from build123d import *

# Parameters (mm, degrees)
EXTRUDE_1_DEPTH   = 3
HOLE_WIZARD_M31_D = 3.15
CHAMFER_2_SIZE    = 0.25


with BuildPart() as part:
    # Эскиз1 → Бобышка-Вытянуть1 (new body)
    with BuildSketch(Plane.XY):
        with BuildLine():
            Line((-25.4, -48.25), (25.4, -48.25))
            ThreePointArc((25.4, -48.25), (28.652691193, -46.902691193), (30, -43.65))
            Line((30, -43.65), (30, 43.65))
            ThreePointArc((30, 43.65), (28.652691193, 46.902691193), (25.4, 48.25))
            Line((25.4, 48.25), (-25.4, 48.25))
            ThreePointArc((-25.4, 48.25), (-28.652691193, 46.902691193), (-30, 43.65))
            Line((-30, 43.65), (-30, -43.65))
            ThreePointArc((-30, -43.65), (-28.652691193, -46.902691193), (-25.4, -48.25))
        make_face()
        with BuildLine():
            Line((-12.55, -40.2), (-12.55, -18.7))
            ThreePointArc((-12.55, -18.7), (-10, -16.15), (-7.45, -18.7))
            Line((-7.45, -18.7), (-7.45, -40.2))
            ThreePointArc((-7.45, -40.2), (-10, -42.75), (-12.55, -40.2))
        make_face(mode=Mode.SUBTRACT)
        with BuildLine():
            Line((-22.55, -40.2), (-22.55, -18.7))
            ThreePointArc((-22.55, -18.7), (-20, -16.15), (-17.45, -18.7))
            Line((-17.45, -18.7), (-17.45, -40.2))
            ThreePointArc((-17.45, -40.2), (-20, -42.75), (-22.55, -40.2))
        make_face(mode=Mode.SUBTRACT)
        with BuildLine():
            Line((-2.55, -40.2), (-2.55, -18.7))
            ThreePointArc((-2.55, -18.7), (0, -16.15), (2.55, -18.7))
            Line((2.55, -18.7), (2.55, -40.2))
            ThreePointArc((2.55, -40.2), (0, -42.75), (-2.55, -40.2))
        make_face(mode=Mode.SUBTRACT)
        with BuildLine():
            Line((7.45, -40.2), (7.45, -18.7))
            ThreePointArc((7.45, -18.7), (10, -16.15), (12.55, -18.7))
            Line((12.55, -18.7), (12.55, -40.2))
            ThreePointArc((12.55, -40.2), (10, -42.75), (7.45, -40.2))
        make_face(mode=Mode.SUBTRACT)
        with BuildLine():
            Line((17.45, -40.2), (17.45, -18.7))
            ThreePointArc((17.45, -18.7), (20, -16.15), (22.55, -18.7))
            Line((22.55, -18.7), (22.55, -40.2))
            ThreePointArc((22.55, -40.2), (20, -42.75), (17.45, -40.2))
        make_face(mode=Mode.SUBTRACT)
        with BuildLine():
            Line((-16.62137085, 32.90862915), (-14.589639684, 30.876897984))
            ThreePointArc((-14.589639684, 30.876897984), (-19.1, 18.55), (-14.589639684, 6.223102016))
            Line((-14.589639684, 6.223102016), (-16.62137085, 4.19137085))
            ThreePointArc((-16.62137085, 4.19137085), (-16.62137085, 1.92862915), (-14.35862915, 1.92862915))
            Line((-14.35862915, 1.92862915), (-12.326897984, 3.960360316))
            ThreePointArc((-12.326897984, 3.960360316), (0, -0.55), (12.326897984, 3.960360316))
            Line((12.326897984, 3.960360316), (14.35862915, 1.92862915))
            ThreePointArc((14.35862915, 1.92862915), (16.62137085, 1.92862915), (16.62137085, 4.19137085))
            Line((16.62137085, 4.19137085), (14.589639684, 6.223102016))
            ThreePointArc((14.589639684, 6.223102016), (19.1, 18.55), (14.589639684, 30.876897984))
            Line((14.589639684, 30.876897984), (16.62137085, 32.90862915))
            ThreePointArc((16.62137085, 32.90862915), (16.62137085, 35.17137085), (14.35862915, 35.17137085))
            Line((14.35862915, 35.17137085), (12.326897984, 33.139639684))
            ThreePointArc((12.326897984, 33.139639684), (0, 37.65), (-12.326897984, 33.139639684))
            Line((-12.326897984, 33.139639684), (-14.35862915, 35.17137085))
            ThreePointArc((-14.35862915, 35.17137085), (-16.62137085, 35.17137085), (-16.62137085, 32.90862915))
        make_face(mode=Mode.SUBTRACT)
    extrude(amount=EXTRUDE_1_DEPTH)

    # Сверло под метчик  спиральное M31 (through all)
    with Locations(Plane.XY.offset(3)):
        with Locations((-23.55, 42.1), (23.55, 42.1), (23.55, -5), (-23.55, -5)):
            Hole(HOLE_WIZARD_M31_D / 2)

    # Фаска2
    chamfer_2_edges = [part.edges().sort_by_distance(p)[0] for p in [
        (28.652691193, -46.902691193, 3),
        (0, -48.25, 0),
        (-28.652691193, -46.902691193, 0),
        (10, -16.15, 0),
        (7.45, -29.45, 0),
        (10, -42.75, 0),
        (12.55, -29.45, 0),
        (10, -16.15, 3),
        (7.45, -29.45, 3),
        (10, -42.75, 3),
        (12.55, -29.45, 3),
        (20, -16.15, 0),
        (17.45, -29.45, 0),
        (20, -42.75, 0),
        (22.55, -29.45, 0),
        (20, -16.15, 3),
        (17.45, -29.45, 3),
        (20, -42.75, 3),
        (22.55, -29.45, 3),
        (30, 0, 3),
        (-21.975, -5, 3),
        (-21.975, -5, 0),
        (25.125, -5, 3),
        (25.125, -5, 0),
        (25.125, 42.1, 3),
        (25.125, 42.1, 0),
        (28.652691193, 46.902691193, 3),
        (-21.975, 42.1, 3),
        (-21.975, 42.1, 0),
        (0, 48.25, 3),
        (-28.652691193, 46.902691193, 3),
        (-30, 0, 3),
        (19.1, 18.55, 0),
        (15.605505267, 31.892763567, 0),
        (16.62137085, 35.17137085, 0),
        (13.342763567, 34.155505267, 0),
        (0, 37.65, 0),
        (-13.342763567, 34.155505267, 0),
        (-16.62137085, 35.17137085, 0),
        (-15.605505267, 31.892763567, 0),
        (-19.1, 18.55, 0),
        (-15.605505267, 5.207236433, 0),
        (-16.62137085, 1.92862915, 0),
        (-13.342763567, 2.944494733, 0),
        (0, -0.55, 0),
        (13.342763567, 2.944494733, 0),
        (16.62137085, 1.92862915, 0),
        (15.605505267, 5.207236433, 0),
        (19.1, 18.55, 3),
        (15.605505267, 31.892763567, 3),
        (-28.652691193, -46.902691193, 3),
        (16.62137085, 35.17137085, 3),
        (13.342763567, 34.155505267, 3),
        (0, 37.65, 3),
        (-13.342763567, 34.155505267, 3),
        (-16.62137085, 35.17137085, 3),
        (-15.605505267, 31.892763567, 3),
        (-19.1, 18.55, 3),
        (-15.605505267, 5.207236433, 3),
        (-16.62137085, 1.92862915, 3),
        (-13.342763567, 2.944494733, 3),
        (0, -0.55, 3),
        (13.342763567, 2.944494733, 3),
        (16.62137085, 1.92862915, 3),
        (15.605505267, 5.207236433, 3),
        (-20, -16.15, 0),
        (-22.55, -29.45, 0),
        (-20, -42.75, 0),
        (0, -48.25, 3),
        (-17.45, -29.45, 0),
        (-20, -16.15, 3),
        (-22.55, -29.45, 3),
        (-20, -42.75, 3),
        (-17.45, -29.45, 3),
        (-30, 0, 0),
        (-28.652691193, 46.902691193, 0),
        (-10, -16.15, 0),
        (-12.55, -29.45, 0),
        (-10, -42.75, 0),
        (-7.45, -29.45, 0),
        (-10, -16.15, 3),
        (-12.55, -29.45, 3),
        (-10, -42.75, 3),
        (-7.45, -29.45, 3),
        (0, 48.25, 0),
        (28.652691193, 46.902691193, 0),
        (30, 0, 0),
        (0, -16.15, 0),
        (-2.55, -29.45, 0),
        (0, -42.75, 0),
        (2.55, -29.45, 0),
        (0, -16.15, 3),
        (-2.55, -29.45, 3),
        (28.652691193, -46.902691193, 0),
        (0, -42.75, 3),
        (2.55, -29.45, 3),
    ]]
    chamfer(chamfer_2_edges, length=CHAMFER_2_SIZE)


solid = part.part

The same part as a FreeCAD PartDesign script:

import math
import FreeCAD as App
import Part
import Sketcher
from FreeCAD import Vector


def edges_at(feature, points):
    """Names of the edges that pass closest to the given points."""
    edges = feature.Shape.Edges
    near = lambda p: min(range(len(edges)), key=lambda i: edges[i].distToShape(Part.Vertex(*p))[0])
    return sorted({f"Edge{near(p) + 1}" for p in points})

doc = App.newDocument("Part")
body = doc.addObject("PartDesign::Body", "Body")

# Sketch on XY plane
sketch1 = body.newObject("Sketcher::SketchObject", "Sketch")
sketch1.AttachmentSupport = (doc.getObject("XY_Plane"), [""])
sketch1.MapMode = "FlatFace"
sketch1.addGeometry(Part.LineSegment(Vector(-25.4, -48.2, 0), Vector(25.4, -48.2, 0)), False)
sketch1.addGeometry(Part.ArcOfCircle(Part.Circle(Vector(25.4, -43.6, 0), Vector(0, 0, 1), 4.6), math.radians(-90), math.radians(0)), False)
sketch1.addGeometry(Part.LineSegment(Vector(30, -43.6, 0), Vector(30, 43.6, 0)), False)
sketch1.addGeometry(Part.ArcOfCircle(Part.Circle(Vector(25.4, 43.6, 0), Vector(0, 0, 1), 4.6), math.radians(0), math.radians(90)), False)
sketch1.addGeometry(Part.LineSegment(Vector(25.4, 48.2, 0), Vector(-25.4, 48.2, 0)), False)
sketch1.addGeometry(Part.ArcOfCircle(Part.Circle(Vector(-25.4, 43.6, 0), Vector(0, 0, 1), 4.6), math.radians(90), math.radians(180)), False)
sketch1.addGeometry(Part.LineSegment(Vector(-30, 43.6, 0), Vector(-30, -43.6, 0)), False)
sketch1.addGeometry(Part.ArcOfCircle(Part.Circle(Vector(-25.4, -43.6, 0), Vector(0, 0, 1), 4.6), math.radians(-180), math.radians(-90)), False)
sketch1.addGeometry(Part.ArcOfCircle(Part.Circle(Vector(-20, -40.2, 0), Vector(0, 0, 1), 2.5), math.radians(180), math.radians(360)), False)
sketch1.addGeometry(Part.LineSegment(Vector(-22.6, -40.2, 0), Vector(-22.6, -18.7, 0)), False)
sketch1.addGeometry(Part.ArcOfCircle(Part.Circle(Vector(-20, -18.7, 0), Vector(0, 0, 1), 2.5), math.radians(0), math.radians(180)), False)
sketch1.addGeometry(Part.LineSegment(Vector(-17.4, -18.7, 0), Vector(-17.4, -40.2, 0)), False)
sketch1.addGeometry(Part.ArcOfCircle(Part.Circle(Vector(-10, -40.2, 0), Vector(0, 0, 1), 2.5), math.radians(180), math.radians(360)), False)
sketch1.addGeometry(Part.LineSegment(Vector(-12.6, -40.2, 0), Vector(-12.6, -18.7, 0)), False)
sketch1.addGeometry(Part.ArcOfCircle(Part.Circle(Vector(-10, -18.7, 0), Vector(0, 0, 1), 2.5), math.radians(0), math.radians(180)), False)
sketch1.addGeometry(Part.LineSegment(Vector(-7.5, -18.7, 0), Vector(-7.5, -40.2, 0)), False)
sketch1.addGeometry(Part.ArcOfCircle(Part.Circle(Vector(0, -40.2, 0), Vector(0, 0, 1), 2.5), math.radians(180), math.radians(360)), False)
sketch1.addGeometry(Part.LineSegment(Vector(-2.5, -40.2, 0), Vector(-2.5, -18.7, 0)), False)
sketch1.addGeometry(Part.ArcOfCircle(Part.Circle(Vector(0, -18.7, 0), Vector(0, 0, 1), 2.5), math.radians(0), math.radians(180)), False)
sketch1.addGeometry(Part.LineSegment(Vector(2.5, -18.7, 0), Vector(2.5, -40.2, 0)), False)
sketch1.addGeometry(Part.ArcOfCircle(Part.Circle(Vector(10, -40.2, 0), Vector(0, 0, 1), 2.5), math.radians(180), math.radians(360)), False)
sketch1.addGeometry(Part.LineSegment(Vector(7.5, -40.2, 0), Vector(7.5, -18.7, 0)), False)
sketch1.addGeometry(Part.ArcOfCircle(Part.Circle(Vector(10, -18.7, 0), Vector(0, 0, 1), 2.5), math.radians(0), math.radians(180)), False)
sketch1.addGeometry(Part.LineSegment(Vector(12.6, -18.7, 0), Vector(12.6, -40.2, 0)), False)
sketch1.addGeometry(Part.ArcOfCircle(Part.Circle(Vector(20, -40.2, 0), Vector(0, 0, 1), 2.5), math.radians(180), math.radians(360)), False)
sketch1.addGeometry(Part.LineSegment(Vector(17.4, -40.2, 0), Vector(17.4, -18.7, 0)), False)
sketch1.addGeometry(Part.ArcOfCircle(Part.Circle(Vector(20, -18.7, 0), Vector(0, 0, 1), 2.5), math.radians(0), math.radians(180)), False)
sketch1.addGeometry(Part.LineSegment(Vector(22.6, -18.7, 0), Vector(22.6, -40.2, 0)), False)
sketch1.addGeometry(Part.LineSegment(Vector(-14.6, 30.9, 0), Vector(-16.6, 32.9, 0)), False)
sketch1.addGeometry(Part.ArcOfCircle(Part.Circle(Vector(-15.5, 34, 0), Vector(0, 0, 1), 1.6), math.radians(45), math.radians(225)), False)
sketch1.addGeometry(Part.LineSegment(Vector(-14.4, 35.2, 0), Vector(-12.3, 33.1, 0)), False)
sketch1.addGeometry(Part.ArcOfCircle(Part.Circle(Vector(0, 18.5, 0), Vector(0, 0, 1), 19.1), math.radians(50), math.radians(130)), False)
sketch1.addGeometry(Part.LineSegment(Vector(12.3, 33.1, 0), Vector(14.4, 35.2, 0)), False)
sketch1.addGeometry(Part.ArcOfCircle(Part.Circle(Vector(15.5, 34, 0), Vector(0, 0, 1), 1.6), math.radians(-45), math.radians(135)), False)
sketch1.addGeometry(Part.LineSegment(Vector(16.6, 32.9, 0), Vector(14.6, 30.9, 0)), False)
sketch1.addGeometry(Part.ArcOfCircle(Part.Circle(Vector(0, 18.6, 0), Vector(0, 0, 1), 19.1), math.radians(-40), math.radians(40)), False)
sketch1.addGeometry(Part.LineSegment(Vector(14.6, 6.2, 0), Vector(16.6, 4.2, 0)), False)
sketch1.addGeometry(Part.ArcOfCircle(Part.Circle(Vector(15.5, 3.1, 0), Vector(0, 0, 1), 1.6), math.radians(-135), math.radians(45)), False)
sketch1.addGeometry(Part.LineSegment(Vector(14.4, 1.9, 0), Vector(12.3, 4, 0)), False)
sketch1.addGeometry(Part.ArcOfCircle(Part.Circle(Vector(0, 18.6, 0), Vector(0, 0, 1), 19.1), math.radians(-130), math.radians(-50)), False)
sketch1.addGeometry(Part.LineSegment(Vector(-12.3, 4, 0), Vector(-14.4, 1.9, 0)), False)
sketch1.addGeometry(Part.ArcOfCircle(Part.Circle(Vector(-15.5, 3.1, 0), Vector(0, 0, 1), 1.6), math.radians(135), math.radians(315)), False)
sketch1.addGeometry(Part.LineSegment(Vector(-16.6, 4.2, 0), Vector(-14.6, 6.2, 0)), False)
sketch1.addGeometry(Part.ArcOfCircle(Part.Circle(Vector(0, 18.6, 0), Vector(0, 0, 1), 19.1), math.radians(140), math.radians(220)), False)
sketch1.addConstraint(Sketcher.Constraint("Tangent", 0, 2, 1, 1))
sketch1.addConstraint(Sketcher.Constraint("Tangent", 1, 2, 2, 1))
sketch1.addConstraint(Sketcher.Constraint("Tangent", 2, 2, 3, 1))
sketch1.addConstraint(Sketcher.Constraint("Tangent", 3, 2, 4, 1))
sketch1.addConstraint(Sketcher.Constraint("Tangent", 4, 2, 5, 1))
sketch1.addConstraint(Sketcher.Constraint("Tangent", 5, 2, 6, 1))
sketch1.addConstraint(Sketcher.Constraint("Tangent", 6, 2, 7, 1))
sketch1.addConstraint(Sketcher.Constraint("Tangent", 7, 2, 0, 1))
sketch1.addConstraint(Sketcher.Constraint("Tangent", 8, 1, 9, 1))
sketch1.addConstraint(Sketcher.Constraint("Tangent", 9, 2, 10, 2))
sketch1.addConstraint(Sketcher.Constraint("Tangent", 10, 1, 11, 1))
sketch1.addConstraint(Sketcher.Constraint("Tangent", 11, 2, 8, 2))
sketch1.addConstraint(Sketcher.Constraint("Tangent", 12, 1, 13, 1))
sketch1.addConstraint(Sketcher.Constraint("Tangent", 13, 2, 14, 2))
sketch1.addConstraint(Sketcher.Constraint("Tangent", 14, 1, 15, 1))
sketch1.addConstraint(Sketcher.Constraint("Tangent", 15, 2, 12, 2))
sketch1.addConstraint(Sketcher.Constraint("Tangent", 16, 1, 17, 1))
sketch1.addConstraint(Sketcher.Constraint("Tangent", 17, 2, 18, 2))
sketch1.addConstraint(Sketcher.Constraint("Tangent", 18, 1, 19, 1))
sketch1.addConstraint(Sketcher.Constraint("Tangent", 19, 2, 16, 2))
sketch1.addConstraint(Sketcher.Constraint("Tangent", 20, 1, 21, 1))
sketch1.addConstraint(Sketcher.Constraint("Tangent", 21, 2, 22, 2))
sketch1.addConstraint(Sketcher.Constraint("Tangent", 22, 1, 23, 1))
sketch1.addConstraint(Sketcher.Constraint("Tangent", 23, 2, 20, 2))
sketch1.addConstraint(Sketcher.Constraint("Tangent", 24, 1, 25, 1))
sketch1.addConstraint(Sketcher.Constraint("Tangent", 25, 2, 26, 2))
sketch1.addConstraint(Sketcher.Constraint("Tangent", 26, 1, 27, 1))
sketch1.addConstraint(Sketcher.Constraint("Tangent", 27, 2, 24, 2))
sketch1.addConstraint(Sketcher.Constraint("Tangent", 28, 2, 29, 2))
sketch1.addConstraint(Sketcher.Constraint("Tangent", 29, 1, 30, 1))
sketch1.addConstraint(Sketcher.Constraint("Coincident", 30, 2, 31, 2))
sketch1.addConstraint(Sketcher.Constraint("Coincident", 31, 1, 32, 1))
sketch1.addConstraint(Sketcher.Constraint("Tangent", 32, 2, 33, 2))
sketch1.addConstraint(Sketcher.Constraint("Tangent", 33, 1, 34, 1))
sketch1.addConstraint(Sketcher.Constraint("Coincident", 34, 2, 35, 2))
sketch1.addConstraint(Sketcher.Constraint("Coincident", 35, 1, 36, 1))
sketch1.addConstraint(Sketcher.Constraint("Tangent", 36, 2, 37, 2))
sketch1.addConstraint(Sketcher.Constraint("Tangent", 37, 1, 38, 1))
sketch1.addConstraint(Sketcher.Constraint("Coincident", 38, 2, 39, 2))
sketch1.addConstraint(Sketcher.Constraint("Coincident", 39, 1, 40, 1))
sketch1.addConstraint(Sketcher.Constraint("Tangent", 40, 2, 41, 2))
sketch1.addConstraint(Sketcher.Constraint("Tangent", 41, 1, 42, 1))
sketch1.addConstraint(Sketcher.Constraint("Coincident", 42, 2, 43, 2))
sketch1.addConstraint(Sketcher.Constraint("Coincident", 43, 1, 28, 1))
sketch1.addConstraint(Sketcher.Constraint("Horizontal", 0))
sketch1.addConstraint(Sketcher.Constraint("Vertical", 2))
sketch1.addConstraint(Sketcher.Constraint("Horizontal", 4))
sketch1.addConstraint(Sketcher.Constraint("Vertical", 6))
sketch1.addConstraint(Sketcher.Constraint("Vertical", 9))
sketch1.addConstraint(Sketcher.Constraint("Vertical", 11))
sketch1.addConstraint(Sketcher.Constraint("Vertical", 13))
sketch1.addConstraint(Sketcher.Constraint("Vertical", 15))
sketch1.addConstraint(Sketcher.Constraint("Vertical", 17))
sketch1.addConstraint(Sketcher.Constraint("Vertical", 19))
sketch1.addConstraint(Sketcher.Constraint("Vertical", 21))
sketch1.addConstraint(Sketcher.Constraint("Vertical", 23))
sketch1.addConstraint(Sketcher.Constraint("Vertical", 25))
sketch1.addConstraint(Sketcher.Constraint("Vertical", 27))
sketch1.addConstraint(Sketcher.Constraint("Coincident", 35, 3, 31, 3))
sketch1.addConstraint(Sketcher.Constraint("Coincident", 39, 3, 31, 3))
sketch1.addConstraint(Sketcher.Constraint("Coincident", 43, 3, 31, 3))
sketch1.addConstraint(Sketcher.Constraint("Equal", 1, 3))
sketch1.addConstraint(Sketcher.Constraint("Equal", 3, 5))
sketch1.addConstraint(Sketcher.Constraint("Equal", 5, 7))
sketch1.addConstraint(Sketcher.Constraint("Equal", 10, 12))
sketch1.addConstraint(Sketcher.Constraint("Equal", 14, 16))
sketch1.addConstraint(Sketcher.Constraint("Equal", 18, 20))
sketch1.addConstraint(Sketcher.Constraint("Equal", 22, 24))
sketch1.addConstraint(Sketcher.Constraint("Equal", 29, 33))
sketch1.addConstraint(Sketcher.Constraint("Equal", 31, 35))
sketch1.addConstraint(Sketcher.Constraint("Equal", 33, 37))
sketch1.addConstraint(Sketcher.Constraint("Equal", 35, 39))
sketch1.addConstraint(Sketcher.Constraint("Equal", 37, 41))
sketch1.addConstraint(Sketcher.Constraint("Equal", 39, 43))
sketch1.addConstraint(Sketcher.Constraint("Symmetric", 1, 3, 5, 3, -1, 1))
sketch1.addConstraint(Sketcher.Constraint("Symmetric", 12, 3, 20, 3, -2))
sketch1.addConstraint(Sketcher.Constraint("Symmetric", 8, 3, 24, 3, -2))
sketch1.addConstraint(Sketcher.Constraint("Symmetric", 29, 3, 33, 3, -2))
sketch1.addConstraint(Sketcher.Constraint("Symmetric", 37, 3, 41, 3, -2))
sketch1.addConstraint(Sketcher.Constraint("Symmetric", 30, 2, 31, 1, -2))
sketch1.addConstraint(Sketcher.Constraint("PointOnObject", 16, 3, -2))
sketch1.addConstraint(Sketcher.Constraint("Parallel", 28, 30))
sketch1.addConstraint(Sketcher.Constraint("Perpendicular", 30, 32))
sketch1.addConstraint(Sketcher.Constraint("Parallel", 32, 34))
sketch1.addConstraint(Sketcher.Constraint("Perpendicular", 34, 36))
sketch1.addConstraint(Sketcher.Constraint("Parallel", 36, 38))
sketch1.addConstraint(Sketcher.Constraint("Perpendicular", 38, 40))
sketch1.addConstraint(Sketcher.Constraint("Parallel", 40, 42))
sketch1.addConstraint(Sketcher.Constraint("Horizontal", 8, 3, 12, 3))
sketch1.addConstraint(Sketcher.Constraint("Horizontal", 10, 3, 14, 3))
sketch1.addConstraint(Sketcher.Constraint("Horizontal", 12, 3, 16, 3))
sketch1.addConstraint(Sketcher.Constraint("Horizontal", 14, 3, 18, 3))
sketch1.addConstraint(Sketcher.Constraint("Horizontal", 18, 3, 22, 3))
sketch1.addConstraint(Sketcher.Constraint("Horizontal", 22, 3, 26, 3))
sketch1.addConstraint(Sketcher.Constraint("Vertical", 33, 3, 37, 3))
sketch1.addConstraint(Sketcher.Constraint("Vertical", 34, 2, 35, 1))
sketch1.addConstraint(Sketcher.Constraint("Equal", 28, 30))
sketch1.addConstraint(Sketcher.Constraint("Radius", 1, 4.6))
sketch1.addConstraint(Sketcher.Constraint("Radius", 29, 1.6))
sketch1.addConstraint(Sketcher.Constraint("Radius", 31, 19.1))
sketch1.addConstraint(Sketcher.Constraint("Radius", 8, 2.55))
sketch1.addConstraint(Sketcher.Constraint("DistanceX", 0, 1, 0, 2, 50.8))
sketch1.addConstraint(Sketcher.Constraint("DistanceY", 2, 1, 2, 2, 87.3))
sketch1.addConstraint(Sketcher.Constraint("DistanceY", 9, 1, 9, 2, 21.5))
sketch1.addConstraint(Sketcher.Constraint("DistanceX", 8, 3, -1, 1, 20.0))
sketch1.addConstraint(Sketcher.Constraint("DistanceX", 12, 3, -1, 1, 10.0))
sketch1.addConstraint(Sketcher.Constraint("DistanceY", 8, 3, -1, 1, 40.2))
sketch1.addConstraint(Sketcher.Constraint("DistanceX", 29, 3, -1, 1, 15.49))
sketch1.addConstraint(Sketcher.Constraint("DistanceY", -1, 1, 29, 3, 34.04))
pad1 = body.newObject("PartDesign::Pad", "Pad")
pad1.Profile = sketch1
pad1.Length = 3

# Sketch on XY plane
sketch2 = body.newObject("Sketcher::SketchObject", "Sketch001")
sketch2.AttachmentSupport = (doc.getObject("XY_Plane"), [""])
sketch2.MapMode = "FlatFace"
sketch2.AttachmentOffset = App.Placement(Vector(0, 0, 3), App.Rotation())
sketch2.addGeometry(Part.Circle(Vector(-23.6, 42.1, 0), Vector(0, 0, 1), 1.6), False)
sketch2.addGeometry(Part.Circle(Vector(23.6, 42.1, 0), Vector(0, 0, 1), 1.6), False)
sketch2.addGeometry(Part.Circle(Vector(23.6, -5, 0), Vector(0, 0, 1), 1.6), False)
sketch2.addGeometry(Part.Circle(Vector(-23.6, -5, 0), Vector(0, 0, 1), 1.6), False)
sketch2.addConstraint(Sketcher.Constraint("Equal", 0, 1))
sketch2.addConstraint(Sketcher.Constraint("Equal", 1, 2))
sketch2.addConstraint(Sketcher.Constraint("Equal", 2, 3))
sketch2.addConstraint(Sketcher.Constraint("Symmetric", 0, 3, 1, 3, -2))
sketch2.addConstraint(Sketcher.Constraint("Symmetric", 2, 3, 3, 3, -2))
sketch2.addConstraint(Sketcher.Constraint("Vertical", 1, 3, 2, 3))
sketch2.addConstraint(Sketcher.Constraint("Diameter", 0, 3.15))
sketch2.addConstraint(Sketcher.Constraint("DistanceY", 2, 3, -1, 1, 5.0))
sketch2.addConstraint(Sketcher.Constraint("DistanceY", -1, 1, 0, 3, 42.1))
sketch2.addConstraint(Sketcher.Constraint("DistanceX", 0, 3, 1, 3, 47.1))
doc.recompute()
hole = body.newObject("PartDesign::Hole", "Hole")
hole.Profile = sketch2
hole.ThreadType = "None"
hole.Diameter = 3.15
hole.DepthType = "ThroughAll"
doc.recompute()

chamfer = body.newObject("PartDesign::Chamfer", "Chamfer")
chamfer.Base = (hole, edges_at(hole, [
    (28.653, -46.903, 3),
    (0, -48.25, 0),
    (-28.653, -46.903, 0),
    (10, -16.15, 0),
    (7.45, -29.45, 0),
    (10, -42.75, 0),
    (12.55, -29.45, 0),
    (10, -16.15, 3),
    (7.45, -29.45, 3),
    (10, -42.75, 3),
    (12.55, -29.45, 3),
    (20, -16.15, 0),
    (17.45, -29.45, 0),
    (20, -42.75, 0),
    (22.55, -29.45, 0),
    (20, -16.15, 3),
    (17.45, -29.45, 3),
    (20, -42.75, 3),
    (22.55, -29.45, 3),
    (30, 0, 3),
    (-21.975, -5, 3),
    (-21.975, -5, 0),
    (25.125, -5, 3),
    (25.125, -5, 0),
    (25.125, 42.1, 3),
    (25.125, 42.1, 0),
    (28.653, 46.903, 3),
    (-21.975, 42.1, 3),
    (-21.975, 42.1, 0),
    (0, 48.25, 3),
    (-28.653, 46.903, 3),
    (-30, 0, 3),
    (19.1, 18.55, 0),
    (15.606, 31.893, 0),
    (16.621, 35.171, 0),
    (13.343, 34.156, 0),
    (0, 37.65, 0),
    (-13.343, 34.156, 0),
    (-16.621, 35.171, 0),
    (-15.606, 31.893, 0),
    (-19.1, 18.55, 0),
    (-15.606, 5.207, 0),
    (-16.621, 1.929, 0),
    (-13.343, 2.944, 0),
    (0, -0.55, 0),
    (13.343, 2.944, 0),
    (16.621, 1.929, 0),
    (15.606, 5.207, 0),
    (19.1, 18.55, 3),
    (15.606, 31.893, 3),
    (-28.653, -46.903, 3),
    (16.621, 35.171, 3),
    (13.343, 34.156, 3),
    (0, 37.65, 3),
    (-13.343, 34.156, 3),
    (-16.621, 35.171, 3),
    (-15.606, 31.893, 3),
    (-19.1, 18.55, 3),
    (-15.606, 5.207, 3),
    (-16.621, 1.929, 3),
    (-13.343, 2.944, 3),
    (0, -0.55, 3),
    (13.343, 2.944, 3),
    (16.621, 1.929, 3),
    (15.606, 5.207, 3),
    (-20, -16.15, 0),
    (-22.55, -29.45, 0),
    (-20, -42.75, 0),
    (0, -48.25, 3),
    (-17.45, -29.45, 0),
    (-20, -16.15, 3),
    (-22.55, -29.45, 3),
    (-20, -42.75, 3),
    (-17.45, -29.45, 3),
    (-30, 0, 0),
    (-28.653, 46.903, 0),
    (-10, -16.15, 0),
    (-12.55, -29.45, 0),
    (-10, -42.75, 0),
    (-7.45, -29.45, 0),
    (-10, -16.15, 3),
    (-12.55, -29.45, 3),
    (-10, -42.75, 3),
    (-7.45, -29.45, 3),
    (0, 48.25, 0),
    (28.653, 46.903, 0),
    (30, 0, 0),
    (0, -16.15, 0),
    (-2.55, -29.45, 0),
    (0, -42.75, 0),
    (2.55, -29.45, 0),
    (0, -16.15, 3),
    (-2.55, -29.45, 3),
    (28.653, -46.903, 0),
    (0, -42.75, 3),
    (2.55, -29.45, 3),
]))
chamfer.Size = 0.25

doc.recompute()
